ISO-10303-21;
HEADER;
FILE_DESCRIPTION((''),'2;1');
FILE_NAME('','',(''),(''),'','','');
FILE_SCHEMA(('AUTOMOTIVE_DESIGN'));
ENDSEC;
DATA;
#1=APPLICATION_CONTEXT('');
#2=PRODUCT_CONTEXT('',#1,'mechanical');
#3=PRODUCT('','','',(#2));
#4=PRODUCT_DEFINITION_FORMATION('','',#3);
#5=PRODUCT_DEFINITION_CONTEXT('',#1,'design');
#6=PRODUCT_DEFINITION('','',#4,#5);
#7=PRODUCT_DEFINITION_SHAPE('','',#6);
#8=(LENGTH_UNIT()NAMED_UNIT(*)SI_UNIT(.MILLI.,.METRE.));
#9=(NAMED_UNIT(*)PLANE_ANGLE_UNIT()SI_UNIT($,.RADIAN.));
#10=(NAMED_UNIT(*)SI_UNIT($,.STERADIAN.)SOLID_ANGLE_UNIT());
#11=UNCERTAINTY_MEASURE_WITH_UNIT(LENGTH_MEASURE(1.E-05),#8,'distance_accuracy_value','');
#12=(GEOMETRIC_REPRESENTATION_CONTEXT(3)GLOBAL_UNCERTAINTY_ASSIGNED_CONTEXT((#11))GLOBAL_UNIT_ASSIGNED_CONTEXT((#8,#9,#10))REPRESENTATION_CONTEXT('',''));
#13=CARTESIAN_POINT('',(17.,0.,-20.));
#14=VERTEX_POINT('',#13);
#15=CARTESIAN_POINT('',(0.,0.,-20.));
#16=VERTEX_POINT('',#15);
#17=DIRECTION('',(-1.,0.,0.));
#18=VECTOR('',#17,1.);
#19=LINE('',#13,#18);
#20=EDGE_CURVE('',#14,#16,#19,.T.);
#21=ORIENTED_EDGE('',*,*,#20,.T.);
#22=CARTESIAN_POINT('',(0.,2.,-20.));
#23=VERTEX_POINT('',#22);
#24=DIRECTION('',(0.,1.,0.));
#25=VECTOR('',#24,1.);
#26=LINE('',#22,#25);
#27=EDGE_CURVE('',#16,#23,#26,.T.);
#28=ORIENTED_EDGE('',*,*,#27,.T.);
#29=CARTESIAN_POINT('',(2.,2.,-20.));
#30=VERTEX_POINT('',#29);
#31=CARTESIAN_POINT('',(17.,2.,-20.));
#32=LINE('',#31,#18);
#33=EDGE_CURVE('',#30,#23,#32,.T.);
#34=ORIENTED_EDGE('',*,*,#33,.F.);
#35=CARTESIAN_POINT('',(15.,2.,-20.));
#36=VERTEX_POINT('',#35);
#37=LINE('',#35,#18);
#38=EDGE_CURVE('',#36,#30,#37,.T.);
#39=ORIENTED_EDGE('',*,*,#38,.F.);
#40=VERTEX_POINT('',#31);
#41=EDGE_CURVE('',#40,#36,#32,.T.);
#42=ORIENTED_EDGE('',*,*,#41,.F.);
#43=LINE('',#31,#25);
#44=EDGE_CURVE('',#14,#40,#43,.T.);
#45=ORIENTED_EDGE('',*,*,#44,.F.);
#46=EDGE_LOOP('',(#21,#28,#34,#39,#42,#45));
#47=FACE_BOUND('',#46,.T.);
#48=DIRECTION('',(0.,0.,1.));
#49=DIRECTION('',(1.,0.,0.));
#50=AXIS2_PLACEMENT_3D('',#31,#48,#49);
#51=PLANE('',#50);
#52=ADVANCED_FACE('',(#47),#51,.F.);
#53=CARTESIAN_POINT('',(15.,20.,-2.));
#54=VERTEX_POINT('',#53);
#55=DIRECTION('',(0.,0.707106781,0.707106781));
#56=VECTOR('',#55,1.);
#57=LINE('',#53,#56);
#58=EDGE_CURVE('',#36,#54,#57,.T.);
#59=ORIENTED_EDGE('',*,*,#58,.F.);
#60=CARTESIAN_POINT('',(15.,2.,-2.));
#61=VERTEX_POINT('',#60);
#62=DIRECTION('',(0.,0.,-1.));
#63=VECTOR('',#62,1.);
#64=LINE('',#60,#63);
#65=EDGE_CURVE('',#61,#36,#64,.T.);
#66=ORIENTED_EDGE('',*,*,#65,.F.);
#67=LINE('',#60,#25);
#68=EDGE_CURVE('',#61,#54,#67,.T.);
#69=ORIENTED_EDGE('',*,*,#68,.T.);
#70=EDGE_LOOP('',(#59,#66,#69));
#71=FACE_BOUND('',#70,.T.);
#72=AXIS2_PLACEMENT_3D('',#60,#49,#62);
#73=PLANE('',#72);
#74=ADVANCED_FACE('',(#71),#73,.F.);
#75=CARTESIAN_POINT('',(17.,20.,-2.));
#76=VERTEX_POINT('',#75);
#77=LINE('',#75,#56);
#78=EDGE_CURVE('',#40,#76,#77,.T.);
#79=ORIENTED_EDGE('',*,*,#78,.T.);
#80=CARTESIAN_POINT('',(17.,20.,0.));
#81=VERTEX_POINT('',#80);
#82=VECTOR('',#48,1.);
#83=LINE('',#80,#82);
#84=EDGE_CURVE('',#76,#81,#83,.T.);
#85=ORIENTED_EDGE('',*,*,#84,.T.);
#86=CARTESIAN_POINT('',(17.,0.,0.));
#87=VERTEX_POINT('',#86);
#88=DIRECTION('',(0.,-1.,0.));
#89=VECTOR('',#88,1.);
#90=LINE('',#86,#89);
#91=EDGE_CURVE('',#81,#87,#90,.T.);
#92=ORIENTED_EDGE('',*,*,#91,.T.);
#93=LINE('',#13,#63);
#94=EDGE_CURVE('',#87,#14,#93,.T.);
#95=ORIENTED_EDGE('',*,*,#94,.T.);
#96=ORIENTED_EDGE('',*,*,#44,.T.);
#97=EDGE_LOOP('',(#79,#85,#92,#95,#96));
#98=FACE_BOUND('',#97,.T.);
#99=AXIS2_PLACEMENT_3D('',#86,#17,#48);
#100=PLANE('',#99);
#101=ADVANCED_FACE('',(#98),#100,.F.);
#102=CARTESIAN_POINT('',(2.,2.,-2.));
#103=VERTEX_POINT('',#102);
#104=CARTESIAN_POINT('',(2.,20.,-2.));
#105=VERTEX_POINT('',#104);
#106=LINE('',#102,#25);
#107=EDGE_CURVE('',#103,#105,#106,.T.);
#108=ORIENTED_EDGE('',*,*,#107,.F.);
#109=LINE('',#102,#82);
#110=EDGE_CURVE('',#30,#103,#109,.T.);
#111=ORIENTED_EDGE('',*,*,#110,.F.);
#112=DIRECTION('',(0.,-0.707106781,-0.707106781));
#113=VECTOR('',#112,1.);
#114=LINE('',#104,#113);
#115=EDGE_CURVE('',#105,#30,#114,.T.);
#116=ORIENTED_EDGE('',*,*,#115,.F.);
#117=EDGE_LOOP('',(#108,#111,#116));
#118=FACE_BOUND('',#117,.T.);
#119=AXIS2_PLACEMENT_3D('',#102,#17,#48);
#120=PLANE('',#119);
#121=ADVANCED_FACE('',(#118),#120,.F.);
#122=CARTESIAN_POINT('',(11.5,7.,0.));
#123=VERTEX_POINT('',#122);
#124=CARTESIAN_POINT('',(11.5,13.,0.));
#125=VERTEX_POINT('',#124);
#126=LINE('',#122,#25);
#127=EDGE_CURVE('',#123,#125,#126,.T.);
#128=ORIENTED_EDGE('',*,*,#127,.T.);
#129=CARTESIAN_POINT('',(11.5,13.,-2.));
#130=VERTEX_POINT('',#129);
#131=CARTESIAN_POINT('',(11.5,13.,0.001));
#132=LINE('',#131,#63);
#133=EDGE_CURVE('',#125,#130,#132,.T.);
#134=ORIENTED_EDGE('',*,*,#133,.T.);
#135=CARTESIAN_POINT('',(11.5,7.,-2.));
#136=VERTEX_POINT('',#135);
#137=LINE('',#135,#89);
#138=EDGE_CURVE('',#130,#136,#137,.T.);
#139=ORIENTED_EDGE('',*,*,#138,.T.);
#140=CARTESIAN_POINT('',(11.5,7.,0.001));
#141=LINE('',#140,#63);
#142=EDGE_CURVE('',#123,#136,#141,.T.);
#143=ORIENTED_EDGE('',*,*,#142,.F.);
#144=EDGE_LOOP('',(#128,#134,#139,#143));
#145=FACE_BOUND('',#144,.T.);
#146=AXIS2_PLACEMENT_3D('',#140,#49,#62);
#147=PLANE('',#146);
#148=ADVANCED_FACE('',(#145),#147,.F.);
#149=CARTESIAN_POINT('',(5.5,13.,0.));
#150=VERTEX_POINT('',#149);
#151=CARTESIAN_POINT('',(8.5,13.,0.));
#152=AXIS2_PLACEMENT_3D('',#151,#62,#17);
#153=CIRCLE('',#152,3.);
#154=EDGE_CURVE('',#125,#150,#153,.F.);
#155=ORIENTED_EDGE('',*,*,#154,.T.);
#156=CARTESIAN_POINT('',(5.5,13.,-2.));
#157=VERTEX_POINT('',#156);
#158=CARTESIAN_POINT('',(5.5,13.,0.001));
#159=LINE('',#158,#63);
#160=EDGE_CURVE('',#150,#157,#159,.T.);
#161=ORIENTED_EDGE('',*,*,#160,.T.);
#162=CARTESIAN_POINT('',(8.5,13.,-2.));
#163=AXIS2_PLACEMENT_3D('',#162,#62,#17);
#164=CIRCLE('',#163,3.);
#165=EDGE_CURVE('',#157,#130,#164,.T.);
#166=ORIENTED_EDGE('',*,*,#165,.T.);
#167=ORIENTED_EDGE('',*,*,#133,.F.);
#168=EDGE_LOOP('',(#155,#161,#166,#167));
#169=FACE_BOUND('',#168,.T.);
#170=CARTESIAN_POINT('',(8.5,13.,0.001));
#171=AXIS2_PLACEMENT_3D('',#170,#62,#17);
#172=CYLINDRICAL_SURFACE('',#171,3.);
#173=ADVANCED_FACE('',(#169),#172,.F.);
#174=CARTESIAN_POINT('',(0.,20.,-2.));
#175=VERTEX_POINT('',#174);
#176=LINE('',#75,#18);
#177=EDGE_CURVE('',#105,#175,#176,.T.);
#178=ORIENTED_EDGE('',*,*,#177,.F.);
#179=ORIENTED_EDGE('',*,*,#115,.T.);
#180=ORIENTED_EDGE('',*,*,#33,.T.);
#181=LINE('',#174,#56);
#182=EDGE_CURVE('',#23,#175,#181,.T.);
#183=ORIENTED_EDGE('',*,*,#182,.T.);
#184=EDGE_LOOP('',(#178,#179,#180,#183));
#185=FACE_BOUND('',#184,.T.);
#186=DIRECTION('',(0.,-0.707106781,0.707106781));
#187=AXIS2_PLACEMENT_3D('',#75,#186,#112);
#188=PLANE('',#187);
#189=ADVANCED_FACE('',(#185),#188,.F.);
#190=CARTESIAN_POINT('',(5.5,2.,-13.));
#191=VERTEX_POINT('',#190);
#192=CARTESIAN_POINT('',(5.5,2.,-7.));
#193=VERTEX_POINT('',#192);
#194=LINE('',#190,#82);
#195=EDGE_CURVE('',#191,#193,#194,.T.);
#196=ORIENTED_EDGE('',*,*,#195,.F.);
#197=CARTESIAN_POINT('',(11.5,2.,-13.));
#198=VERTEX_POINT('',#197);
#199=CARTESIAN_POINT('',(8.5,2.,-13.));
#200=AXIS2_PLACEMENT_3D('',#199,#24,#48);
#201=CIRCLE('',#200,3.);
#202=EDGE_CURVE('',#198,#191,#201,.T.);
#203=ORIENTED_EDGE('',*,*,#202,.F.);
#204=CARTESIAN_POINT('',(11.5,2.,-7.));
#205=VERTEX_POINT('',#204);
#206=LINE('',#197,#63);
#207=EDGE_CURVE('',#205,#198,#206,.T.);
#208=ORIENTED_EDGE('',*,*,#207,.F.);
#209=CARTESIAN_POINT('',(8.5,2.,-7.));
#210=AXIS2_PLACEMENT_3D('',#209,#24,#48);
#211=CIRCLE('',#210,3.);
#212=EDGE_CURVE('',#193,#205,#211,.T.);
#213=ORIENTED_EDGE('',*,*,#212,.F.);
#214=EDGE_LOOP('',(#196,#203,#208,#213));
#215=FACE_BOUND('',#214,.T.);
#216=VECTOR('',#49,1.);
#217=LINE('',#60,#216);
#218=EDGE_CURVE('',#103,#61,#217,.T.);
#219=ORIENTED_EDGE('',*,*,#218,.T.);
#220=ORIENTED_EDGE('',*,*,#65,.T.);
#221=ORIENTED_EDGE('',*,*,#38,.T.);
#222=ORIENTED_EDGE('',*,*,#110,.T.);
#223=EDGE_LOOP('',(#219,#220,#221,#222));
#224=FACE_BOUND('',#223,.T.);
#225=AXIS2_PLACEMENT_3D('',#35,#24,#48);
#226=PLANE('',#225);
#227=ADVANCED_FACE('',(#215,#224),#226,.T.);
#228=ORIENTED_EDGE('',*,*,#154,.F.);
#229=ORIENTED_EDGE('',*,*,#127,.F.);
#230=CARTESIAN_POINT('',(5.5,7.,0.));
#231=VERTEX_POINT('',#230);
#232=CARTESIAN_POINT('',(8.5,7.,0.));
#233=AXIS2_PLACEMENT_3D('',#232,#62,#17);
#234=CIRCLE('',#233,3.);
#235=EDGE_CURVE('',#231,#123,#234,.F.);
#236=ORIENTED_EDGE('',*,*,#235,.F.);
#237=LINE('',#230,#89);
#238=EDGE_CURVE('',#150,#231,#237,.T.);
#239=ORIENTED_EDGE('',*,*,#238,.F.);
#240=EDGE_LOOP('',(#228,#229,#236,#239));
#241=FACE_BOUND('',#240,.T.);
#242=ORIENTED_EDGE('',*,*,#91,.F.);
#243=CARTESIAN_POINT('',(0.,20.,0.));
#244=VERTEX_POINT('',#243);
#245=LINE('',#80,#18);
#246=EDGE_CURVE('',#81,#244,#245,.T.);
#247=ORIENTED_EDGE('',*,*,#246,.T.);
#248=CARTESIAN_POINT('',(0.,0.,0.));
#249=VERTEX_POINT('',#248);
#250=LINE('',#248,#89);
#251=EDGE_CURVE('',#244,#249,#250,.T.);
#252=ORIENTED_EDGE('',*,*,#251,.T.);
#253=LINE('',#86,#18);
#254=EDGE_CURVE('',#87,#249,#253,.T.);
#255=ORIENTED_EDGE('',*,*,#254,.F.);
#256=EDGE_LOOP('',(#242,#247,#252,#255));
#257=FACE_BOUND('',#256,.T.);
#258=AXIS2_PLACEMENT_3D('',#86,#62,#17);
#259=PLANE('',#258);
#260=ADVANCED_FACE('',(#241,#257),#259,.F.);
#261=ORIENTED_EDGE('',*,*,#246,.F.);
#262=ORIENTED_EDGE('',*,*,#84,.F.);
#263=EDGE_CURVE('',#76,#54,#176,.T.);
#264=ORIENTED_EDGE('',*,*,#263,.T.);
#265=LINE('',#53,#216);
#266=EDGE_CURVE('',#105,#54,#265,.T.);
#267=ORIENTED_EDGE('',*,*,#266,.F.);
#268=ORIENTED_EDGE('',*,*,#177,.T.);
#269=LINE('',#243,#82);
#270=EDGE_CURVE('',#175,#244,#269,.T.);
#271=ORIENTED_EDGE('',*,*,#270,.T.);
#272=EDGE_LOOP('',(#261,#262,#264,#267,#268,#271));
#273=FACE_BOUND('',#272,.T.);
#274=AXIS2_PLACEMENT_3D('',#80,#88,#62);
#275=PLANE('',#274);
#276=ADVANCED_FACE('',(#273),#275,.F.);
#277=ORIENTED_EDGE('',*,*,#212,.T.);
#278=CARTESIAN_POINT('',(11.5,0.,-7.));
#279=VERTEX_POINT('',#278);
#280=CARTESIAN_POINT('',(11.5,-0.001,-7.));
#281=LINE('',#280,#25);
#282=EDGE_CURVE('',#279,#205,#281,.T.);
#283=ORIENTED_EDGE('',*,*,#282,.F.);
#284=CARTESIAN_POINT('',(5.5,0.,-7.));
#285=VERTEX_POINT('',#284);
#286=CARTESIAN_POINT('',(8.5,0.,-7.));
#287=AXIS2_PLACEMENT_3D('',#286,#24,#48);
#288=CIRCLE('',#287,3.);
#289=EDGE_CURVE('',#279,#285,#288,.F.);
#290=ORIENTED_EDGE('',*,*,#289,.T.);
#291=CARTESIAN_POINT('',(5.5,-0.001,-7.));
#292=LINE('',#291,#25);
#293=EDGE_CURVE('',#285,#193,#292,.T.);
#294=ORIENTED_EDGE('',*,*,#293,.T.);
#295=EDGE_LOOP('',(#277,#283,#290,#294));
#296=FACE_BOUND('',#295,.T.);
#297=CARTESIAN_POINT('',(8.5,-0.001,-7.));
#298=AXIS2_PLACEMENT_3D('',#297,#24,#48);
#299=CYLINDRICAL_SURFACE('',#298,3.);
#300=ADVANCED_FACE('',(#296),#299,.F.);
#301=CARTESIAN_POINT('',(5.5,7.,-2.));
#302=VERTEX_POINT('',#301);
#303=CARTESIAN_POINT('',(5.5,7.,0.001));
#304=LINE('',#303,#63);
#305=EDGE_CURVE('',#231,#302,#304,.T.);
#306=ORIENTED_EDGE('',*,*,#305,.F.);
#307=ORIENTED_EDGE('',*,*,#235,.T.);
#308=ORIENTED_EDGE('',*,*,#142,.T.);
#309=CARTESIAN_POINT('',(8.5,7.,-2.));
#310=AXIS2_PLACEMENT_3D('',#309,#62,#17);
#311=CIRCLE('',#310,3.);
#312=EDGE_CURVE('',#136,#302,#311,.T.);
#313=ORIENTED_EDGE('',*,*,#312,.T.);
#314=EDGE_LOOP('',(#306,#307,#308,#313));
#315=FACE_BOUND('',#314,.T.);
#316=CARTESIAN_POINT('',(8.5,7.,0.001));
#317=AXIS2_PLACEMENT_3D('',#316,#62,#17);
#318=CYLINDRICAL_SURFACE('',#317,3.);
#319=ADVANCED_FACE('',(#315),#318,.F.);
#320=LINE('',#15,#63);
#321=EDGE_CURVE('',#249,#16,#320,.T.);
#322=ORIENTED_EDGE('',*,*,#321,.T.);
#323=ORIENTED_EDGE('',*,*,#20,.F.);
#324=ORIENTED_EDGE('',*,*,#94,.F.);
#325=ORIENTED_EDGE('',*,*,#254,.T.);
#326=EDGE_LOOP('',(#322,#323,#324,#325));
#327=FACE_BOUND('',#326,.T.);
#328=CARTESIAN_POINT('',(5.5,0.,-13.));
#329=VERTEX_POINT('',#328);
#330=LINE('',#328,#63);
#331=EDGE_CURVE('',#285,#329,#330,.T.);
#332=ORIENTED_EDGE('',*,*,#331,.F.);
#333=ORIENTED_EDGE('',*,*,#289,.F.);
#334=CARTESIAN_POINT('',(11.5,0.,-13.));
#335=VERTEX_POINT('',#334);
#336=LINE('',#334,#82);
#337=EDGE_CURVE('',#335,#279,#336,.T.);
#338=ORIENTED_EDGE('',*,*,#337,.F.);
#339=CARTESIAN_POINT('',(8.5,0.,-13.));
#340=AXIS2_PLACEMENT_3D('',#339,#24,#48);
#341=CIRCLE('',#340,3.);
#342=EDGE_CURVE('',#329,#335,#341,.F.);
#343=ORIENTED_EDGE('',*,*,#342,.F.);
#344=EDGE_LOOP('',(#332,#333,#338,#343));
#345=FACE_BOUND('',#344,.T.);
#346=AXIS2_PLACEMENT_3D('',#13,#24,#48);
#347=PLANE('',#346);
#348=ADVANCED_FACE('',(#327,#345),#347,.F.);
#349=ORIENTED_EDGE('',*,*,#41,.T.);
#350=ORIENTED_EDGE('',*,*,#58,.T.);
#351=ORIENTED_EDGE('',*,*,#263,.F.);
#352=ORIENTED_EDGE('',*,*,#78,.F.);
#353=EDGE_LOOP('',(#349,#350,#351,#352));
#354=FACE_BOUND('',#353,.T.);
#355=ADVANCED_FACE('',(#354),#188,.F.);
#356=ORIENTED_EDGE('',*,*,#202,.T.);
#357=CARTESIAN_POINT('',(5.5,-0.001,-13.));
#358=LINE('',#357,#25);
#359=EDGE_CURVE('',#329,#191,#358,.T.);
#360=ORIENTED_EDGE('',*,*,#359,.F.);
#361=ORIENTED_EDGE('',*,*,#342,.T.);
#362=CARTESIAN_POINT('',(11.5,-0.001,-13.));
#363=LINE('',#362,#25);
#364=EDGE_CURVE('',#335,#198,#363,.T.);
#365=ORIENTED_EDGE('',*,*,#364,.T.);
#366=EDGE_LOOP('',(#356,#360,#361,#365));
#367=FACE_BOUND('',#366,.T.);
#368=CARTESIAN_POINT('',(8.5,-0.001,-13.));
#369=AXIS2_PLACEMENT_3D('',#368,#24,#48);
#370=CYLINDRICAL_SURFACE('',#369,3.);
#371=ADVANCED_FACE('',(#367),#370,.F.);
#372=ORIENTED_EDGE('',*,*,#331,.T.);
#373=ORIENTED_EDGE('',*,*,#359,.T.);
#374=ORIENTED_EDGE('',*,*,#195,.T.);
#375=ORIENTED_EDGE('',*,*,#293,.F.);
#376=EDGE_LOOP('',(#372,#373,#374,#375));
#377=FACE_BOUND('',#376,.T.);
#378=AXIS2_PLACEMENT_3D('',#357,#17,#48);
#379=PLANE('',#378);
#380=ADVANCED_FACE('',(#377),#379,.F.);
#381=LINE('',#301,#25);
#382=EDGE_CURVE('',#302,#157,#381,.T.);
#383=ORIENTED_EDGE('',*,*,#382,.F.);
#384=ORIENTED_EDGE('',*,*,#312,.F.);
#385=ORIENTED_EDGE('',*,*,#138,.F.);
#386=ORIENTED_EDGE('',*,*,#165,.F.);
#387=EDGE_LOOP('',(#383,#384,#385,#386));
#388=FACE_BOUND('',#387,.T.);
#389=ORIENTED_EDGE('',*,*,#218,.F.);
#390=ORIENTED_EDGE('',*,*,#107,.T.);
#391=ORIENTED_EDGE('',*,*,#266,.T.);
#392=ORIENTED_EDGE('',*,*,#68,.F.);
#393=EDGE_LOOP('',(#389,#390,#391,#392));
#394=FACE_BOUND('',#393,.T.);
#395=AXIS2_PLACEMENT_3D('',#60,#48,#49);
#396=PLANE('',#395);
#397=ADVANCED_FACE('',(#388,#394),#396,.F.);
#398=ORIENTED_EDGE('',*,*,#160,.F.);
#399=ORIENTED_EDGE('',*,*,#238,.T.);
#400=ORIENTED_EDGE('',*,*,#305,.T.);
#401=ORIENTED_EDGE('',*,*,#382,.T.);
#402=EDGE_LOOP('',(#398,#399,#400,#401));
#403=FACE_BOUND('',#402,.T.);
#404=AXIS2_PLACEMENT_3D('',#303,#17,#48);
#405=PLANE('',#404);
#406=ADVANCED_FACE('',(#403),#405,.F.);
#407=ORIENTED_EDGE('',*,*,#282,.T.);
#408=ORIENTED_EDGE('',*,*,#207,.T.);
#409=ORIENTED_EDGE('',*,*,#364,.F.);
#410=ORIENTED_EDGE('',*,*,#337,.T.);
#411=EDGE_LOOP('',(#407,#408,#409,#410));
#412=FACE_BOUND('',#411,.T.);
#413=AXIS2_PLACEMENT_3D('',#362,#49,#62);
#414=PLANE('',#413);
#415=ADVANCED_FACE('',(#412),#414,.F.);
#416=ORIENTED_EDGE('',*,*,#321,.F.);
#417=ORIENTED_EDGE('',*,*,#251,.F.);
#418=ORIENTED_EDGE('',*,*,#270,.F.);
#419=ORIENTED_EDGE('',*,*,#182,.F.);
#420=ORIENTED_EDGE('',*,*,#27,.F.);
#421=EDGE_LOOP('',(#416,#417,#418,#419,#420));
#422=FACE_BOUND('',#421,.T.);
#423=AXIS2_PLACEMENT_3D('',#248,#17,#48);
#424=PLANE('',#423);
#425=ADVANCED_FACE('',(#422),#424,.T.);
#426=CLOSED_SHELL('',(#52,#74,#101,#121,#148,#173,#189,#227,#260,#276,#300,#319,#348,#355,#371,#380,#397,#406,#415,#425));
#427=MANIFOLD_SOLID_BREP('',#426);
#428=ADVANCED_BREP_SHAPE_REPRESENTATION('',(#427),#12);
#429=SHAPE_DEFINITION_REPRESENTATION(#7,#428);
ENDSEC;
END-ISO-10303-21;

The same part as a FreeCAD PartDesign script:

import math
import FreeCAD as App
import Part
import Sketcher

V = App.Vector
Q = App.Units.Quantity

doc = App.newDocument("Part")
body = doc.addObject("PartDesign::Body", "Body")

sketch1 = body.newObject("Sketcher::SketchObject", "Sketch")
sketch1.AttachmentSupport = (doc.getObject("YZ_Plane"), [""])
sketch1.MapMode = "FlatFace"
sketch1.addGeometry(Part.LineSegment(V(20, 0, 0), V(0, 0, 0)), False)
sketch1.addGeometry(Part.LineSegment(V(0, 0, 0), V(0, -20, 0)), False)
sketch1.addGeometry(Part.LineSegment(V(0, -20, 0), V(2, -20, 0)), False)
sketch1.addGeometry(Part.LineSegment(V(2, -20, 0), V(20, -2, 0)), False)
sketch1.addGeometry(Part.LineSegment(V(20, -2, 0), V(20, 0, 0)), False)
sketch1.addConstraint(Sketcher.Constraint("Coincident", 0, 2, 1, 1))
sketch1.addConstraint(Sketcher.Constraint("Coincident", 1, 2, 2, 1))
sketch1.addConstraint(Sketcher.Constraint("Coincident", 2, 2, 3, 1))
sketch1.addConstraint(Sketcher.Constraint("Coincident", 3, 2, 4, 1))
sketch1.addConstraint(Sketcher.Constraint("Coincident", 4, 2, 0, 1))
sketch1.addConstraint(Sketcher.Constraint("Horizontal", 0))
sketch1.addConstraint(Sketcher.Constraint("Vertical", 1))
sketch1.addConstraint(Sketcher.Constraint("Horizontal", 2))
sketch1.addConstraint(Sketcher.Constraint("Vertical", 4))
sketch1.addConstraint(Sketcher.Constraint("Coincident", 0, 2, -1, 1))
sketch1.addConstraint(Sketcher.Constraint("Equal", 0, 1))
sketch1.addConstraint(Sketcher.Constraint("Equal", 2, 4))
sketch1.addConstraint(Sketcher.Constraint("DistanceX", 0, 2, 0, 1, Q("20 mm")))
sketch1.addConstraint(Sketcher.Constraint("DistanceX", 2, 1, 2, 2, Q("2 mm")))
pad1 = body.newObject("PartDesign::Pad", "Pad")
pad1.Profile = sketch1
pad1.Length = 17

sketch2 = body.newObject("Sketcher::SketchObject", "Sketch001")
sketch2.AttachmentSupport = (doc.getObject("XZ_Plane"), [""])
sketch2.MapMode = "FlatFace"
sketch2.AttachmentOffset = App.Placement(V(0, 0, -20), App.Rotation())
sketch2.addGeometry(Part.LineSegment(V(2, -20, 0), V(2, -2, 0)), False)
sketch2.addGeometry(Part.LineSegment(V(2, -2, 0), V(15, -2, 0)), False)
sketch2.addGeometry(Part.LineSegment(V(15, -2, 0), V(15, -20, 0)), False)
sketch2.addGeometry(Part.LineSegment(V(15, -20, 0), V(2, -20, 0)), False)
sketch2.addConstraint(Sketcher.Constraint("Coincident", 0, 2, 1, 1))
sketch2.addConstraint(Sketcher.Constraint("Coincident", 1, 2, 2, 1))
sketch2.addConstraint(Sketcher.Constraint("Coincident", 2, 2, 3, 1))
sketch2.addConstraint(Sketcher.Constraint("Coincident", 3, 2, 0, 1))
sketch2.addConstraint(Sketcher.Constraint("Vertical", 0))
sketch2.addConstraint(Sketcher.Constraint("Horizontal", 1))
sketch2.addConstraint(Sketcher.Constraint("Vertical", 2))
sketch2.addConstraint(Sketcher.Constraint("Horizontal", 3))
sketch2.addConstraint(Sketcher.Constraint("DistanceX", 1, 1, 1, 2, Q("13 mm")))
sketch2.addConstraint(Sketcher.Constraint("DistanceY", 0, 1, 0, 2, Q("18 mm")))
sketch2.addConstraint(Sketcher.Constraint("DistanceX", -1, 1, 0, 2, Q("2 mm")))
sketch2.addConstraint(Sketcher.Constraint("DistanceY", 0, 2, -1, 1, Q("2 mm")))
pocket1 = body.newObject("PartDesign::Pocket", "Pocket")
pocket1.Profile = sketch2
pocket1.Length = 18
pocket1.Reversed = True

sketch3 = body.newObject("Sketcher::SketchObject", "Sketch002")
sketch3.AttachmentSupport = (doc.getObject("XY_Plane"), [""])
sketch3.MapMode = "FlatFace"
sketch3.AttachmentOffset = App.Placement(V(0, 0, -2), App.Rotation())
sketch3.addGeometry(Part.LineSegment(V(11.5, 13, 0), V(11.5, 7, 0)), False)
sketch3.addGeometry(Part.ArcOfCircle(Part.Circle(V(8.5, 7, 0), V(0, 0, 1), 3), math.radians(180), math.radians(360)), False)
sketch3.addGeometry(Part.LineSegment(V(5.5, 7, 0), V(5.5, 13, 0)), False)
sketch3.addGeometry(Part.ArcOfCircle(Part.Circle(V(8.5, 13, 0), V(0, 0, 1), 3), math.radians(0), math.radians(180)), False)
sketch3.addConstraint(Sketcher.Constraint("Tangent", 0, 2, 1, 2))
sketch3.addConstraint(Sketcher.Constraint("Tangent", 1, 1, 2, 1))
sketch3.addConstraint(Sketcher.Constraint("Tangent", 2, 2, 3, 2))
sketch3.addConstraint(Sketcher.Constraint("Tangent", 3, 1, 0, 1))
sketch3.addConstraint(Sketcher.Constraint("Vertical", 0))
sketch3.addConstraint(Sketcher.Constraint("Vertical", 2))
sketch3.addConstraint(Sketcher.Constraint("Radius", 1, Q("3 mm")))
sketch3.addConstraint(Sketcher.Constraint("DistanceY", 0, 2, 0, 1, Q("6 mm")))
sketch3.addConstraint(Sketcher.Constraint("DistanceY", -1, 1, 1, 3, Q("7 mm")))
sketch3.addConstraint(Sketcher.Constraint("DistanceX", -1, 1, 1, 3, Q("8.5 mm")))
pocket2 = body.newObject("PartDesign::Pocket", "Pocket001")
pocket2.Profile = sketch3
pocket2.Type = "UpToFirst"
pocket2.Reversed = True

sketch4 = body.newObject("Sketcher::SketchObject", "Sketch003")
sketch4.AttachmentSupport = (doc.getObject("XZ_Plane"), [""])
sketch4.MapMode = "FlatFace"
sketch4.AttachmentOffset = App.Placement(V(0, 0, -2), App.Rotation())
sketch4.addGeometry(Part.LineSegment(V(11.5, -7, 0), V(11.5, -13, 0)), False)
sketch4.addGeometry(Part.ArcOfCircle(Part.Circle(V(8.5, -13, 0), V(0, 0, 1), 3), math.radians(180), math.radians(360)), False)
sketch4.addGeometry(Part.LineSegment(V(5.5, -13, 0), V(5.5, -7, 0)), False)
sketch4.addGeometry(Part.ArcOfCircle(Part.Circle(V(8.5, -7, 0), V(0, 0, 1), 3), math.radians(0), math.radians(180)), False)
sketch4.addConstraint(Sketcher.Constraint("Tangent", 0, 2, 1, 2))
sketch4.addConstraint(Sketcher.Constraint("Tangent", 1, 1, 2, 1))
sketch4.addConstraint(Sketcher.Constraint("Tangent", 2, 2, 3, 2))
sketch4.addConstraint(Sketcher.Constraint("Tangent", 3, 1, 0, 1))
sketch4.addConstraint(Sketcher.Constraint("Vertical", 0))
sketch4.addConstraint(Sketcher.Constraint("Vertical", 2))
sketch4.addConstraint(Sketcher.Constraint("Radius", 1, Q("3 mm")))
sketch4.addConstraint(Sketcher.Constraint("DistanceY", 0, 2, 0, 1, Q("6 mm")))
sketch4.addConstraint(Sketcher.Constraint("DistanceY", 1, 3, -1, 1, Q("13 mm")))
sketch4.addConstraint(Sketcher.Constraint("DistanceX", -1, 1, 1, 3, Q("8.5 mm")))
pocket3 = body.newObject("PartDesign::Pocket", "Pocket002")
pocket3.Profile = sketch4
pocket3.Type = "UpToFirst"
pocket3.Reversed = True

doc.recompute()
